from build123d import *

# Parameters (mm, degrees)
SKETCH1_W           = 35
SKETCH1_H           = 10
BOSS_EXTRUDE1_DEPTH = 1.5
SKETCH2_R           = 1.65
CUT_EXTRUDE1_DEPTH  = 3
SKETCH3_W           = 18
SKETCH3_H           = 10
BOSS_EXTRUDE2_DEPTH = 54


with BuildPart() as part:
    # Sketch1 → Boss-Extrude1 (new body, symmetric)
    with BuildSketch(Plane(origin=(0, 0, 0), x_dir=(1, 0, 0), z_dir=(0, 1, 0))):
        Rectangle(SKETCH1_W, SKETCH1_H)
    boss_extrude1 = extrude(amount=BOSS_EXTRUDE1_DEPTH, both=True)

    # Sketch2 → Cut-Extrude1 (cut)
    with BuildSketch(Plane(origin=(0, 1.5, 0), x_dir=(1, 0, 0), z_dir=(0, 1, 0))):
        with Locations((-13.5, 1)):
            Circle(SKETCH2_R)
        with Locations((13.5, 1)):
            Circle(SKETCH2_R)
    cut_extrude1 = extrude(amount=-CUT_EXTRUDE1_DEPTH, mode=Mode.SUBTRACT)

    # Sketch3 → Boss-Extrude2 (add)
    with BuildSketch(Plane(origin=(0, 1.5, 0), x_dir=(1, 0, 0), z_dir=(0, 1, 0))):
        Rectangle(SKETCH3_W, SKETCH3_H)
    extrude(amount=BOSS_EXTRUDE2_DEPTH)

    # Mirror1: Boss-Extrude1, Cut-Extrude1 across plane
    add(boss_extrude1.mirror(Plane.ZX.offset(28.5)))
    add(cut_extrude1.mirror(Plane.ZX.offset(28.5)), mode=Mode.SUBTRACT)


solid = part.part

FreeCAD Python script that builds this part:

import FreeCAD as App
import Part
import Sketcher
from FreeCAD import Vector


def add_polygon(sketch, points):
    """Adds a closed chain of lines whose ends are joined by coincident constraints."""
    first, n = sketch.GeometryCount, len(points)
    for a, b in zip(points, points[1:] + points[:1]):
        sketch.addGeometry(Part.LineSegment(App.Vector(*a, 0), App.Vector(*b, 0)), False)
    for i in range(n):
        sketch.addConstraint(Sketcher.Constraint("Coincident", first + i, 2, first + (i + 1) % n, 1))

doc = App.newDocument("Part")
body = doc.addObject("PartDesign::Body", "Body")

sketch1 = body.newObject("Sketcher::SketchObject", "Sketch")
sketch1.AttachmentSupport = (doc.getObject("XZ_Plane"), [""])
sketch1.MapMode = "FlatFace"
add_polygon(sketch1, [(-18, -5), (-18, 5), (18, 5), (18, -5)])
sketch1.addConstraint(Sketcher.Constraint("Vertical", 0))
sketch1.addConstraint(Sketcher.Constraint("Horizontal", 1))
sketch1.addConstraint(Sketcher.Constraint("Vertical", 2))
sketch1.addConstraint(Sketcher.Constraint("Horizontal", 3))
sketch1.addConstraint(Sketcher.Constraint("Symmetric", 0, 2, 2, 2, -1, 1))
sketch1.addConstraint(Sketcher.Constraint("DistanceX", 1, 1, 1, 2, 35.0))
sketch1.addConstraint(Sketcher.Constraint("DistanceY", 0, 1, 0, 2, 10.0))
pad1 = body.newObject("PartDesign::Pad", "Pad")
pad1.Profile = sketch1
pad1.Length = 3
pad1.Midplane = True

sketch2 = body.newObject("Sketcher::SketchObject", "Sketch001")
sketch2.AttachmentSupport = (doc.getObject("XZ_Plane"), [""])
sketch2.MapMode = "FlatFace"
sketch2.AttachmentOffset = App.Placement(Vector(0, 0, -1.5), App.Rotation())
sketch2.addGeometry(Part.Circle(Vector(-13.5, -1, 0), Vector(0, 0, 1), 1.6), False)
sketch2.addGeometry(Part.Circle(Vector(13.5, -1, 0), Vector(0, 0, 1), 1.6), False)
sketch2.addConstraint(Sketcher.Constraint("Equal", 0, 1))
sketch2.addConstraint(Sketcher.Constraint("Symmetric", 0, 3, 1, 3, -2))
sketch2.addConstraint(Sketcher.Constraint("Diameter", 0, 3.3))
sketch2.addConstraint(Sketcher.Constraint("DistanceY", 0, 3, -1, 1, 1.0))
sketch2.addConstraint(Sketcher.Constraint("DistanceX", 0, 3, 1, 3, 27.0))
pocket1 = body.newObject("PartDesign::Pocket", "Pocket")
pocket1.Profile = sketch2
pocket1.Length = 3
pocket1.Reversed = True

sketch3 = body.newObject("Sketcher::SketchObject", "Sketch002")
sketch3.AttachmentSupport = (doc.getObject("XZ_Plane"), [""])
sketch3.MapMode = "FlatFace"
sketch3.AttachmentOffset = App.Placement(Vector(0, 0, -1.5), App.Rotation())
add_polygon(sketch3, [(-9, -5), (-9, 5), (9, 5), (9, -5)])
sketch3.addConstraint(Sketcher.Constraint("Vertical", 0))
sketch3.addConstraint(Sketcher.Constraint("Horizontal", 1))
sketch3.addConstraint(Sketcher.Constraint("Vertical", 2))
sketch3.addConstraint(Sketcher.Constraint("Horizontal", 3))
sketch3.addConstraint(Sketcher.Constraint("Symmetric", 0, 2, 2, 2, -1, 1))
sketch3.addConstraint(Sketcher.Constraint("DistanceX", 1, 1, 1, 2, 18.0))
sketch3.addConstraint(Sketcher.Constraint("DistanceY", 0, 1, 0, 2, 10.0))
pad2 = body.newObject("PartDesign::Pad", "Pad001")
pad2.Profile = sketch3
pad2.Length = 54
pad2.Reversed = True
doc.recompute()

datumplane = body.newObject("PartDesign::Plane", "DatumPlane")
datumplane.AttachmentSupport = (doc.getObject("XZ_Plane"), [""])
datumplane.MapMode = "FlatFace"
datumplane.AttachmentOffset = App.Placement(Vector(0, 0, -28.5), App.Rotation())
mirrored = body.newObject("PartDesign::Mirrored", "Mirrored")
mirrored.Originals = [pad1, pocket1]
mirrored.MirrorPlane = (datumplane, [""])
body.Tip = mirrored

doc.recompute()
